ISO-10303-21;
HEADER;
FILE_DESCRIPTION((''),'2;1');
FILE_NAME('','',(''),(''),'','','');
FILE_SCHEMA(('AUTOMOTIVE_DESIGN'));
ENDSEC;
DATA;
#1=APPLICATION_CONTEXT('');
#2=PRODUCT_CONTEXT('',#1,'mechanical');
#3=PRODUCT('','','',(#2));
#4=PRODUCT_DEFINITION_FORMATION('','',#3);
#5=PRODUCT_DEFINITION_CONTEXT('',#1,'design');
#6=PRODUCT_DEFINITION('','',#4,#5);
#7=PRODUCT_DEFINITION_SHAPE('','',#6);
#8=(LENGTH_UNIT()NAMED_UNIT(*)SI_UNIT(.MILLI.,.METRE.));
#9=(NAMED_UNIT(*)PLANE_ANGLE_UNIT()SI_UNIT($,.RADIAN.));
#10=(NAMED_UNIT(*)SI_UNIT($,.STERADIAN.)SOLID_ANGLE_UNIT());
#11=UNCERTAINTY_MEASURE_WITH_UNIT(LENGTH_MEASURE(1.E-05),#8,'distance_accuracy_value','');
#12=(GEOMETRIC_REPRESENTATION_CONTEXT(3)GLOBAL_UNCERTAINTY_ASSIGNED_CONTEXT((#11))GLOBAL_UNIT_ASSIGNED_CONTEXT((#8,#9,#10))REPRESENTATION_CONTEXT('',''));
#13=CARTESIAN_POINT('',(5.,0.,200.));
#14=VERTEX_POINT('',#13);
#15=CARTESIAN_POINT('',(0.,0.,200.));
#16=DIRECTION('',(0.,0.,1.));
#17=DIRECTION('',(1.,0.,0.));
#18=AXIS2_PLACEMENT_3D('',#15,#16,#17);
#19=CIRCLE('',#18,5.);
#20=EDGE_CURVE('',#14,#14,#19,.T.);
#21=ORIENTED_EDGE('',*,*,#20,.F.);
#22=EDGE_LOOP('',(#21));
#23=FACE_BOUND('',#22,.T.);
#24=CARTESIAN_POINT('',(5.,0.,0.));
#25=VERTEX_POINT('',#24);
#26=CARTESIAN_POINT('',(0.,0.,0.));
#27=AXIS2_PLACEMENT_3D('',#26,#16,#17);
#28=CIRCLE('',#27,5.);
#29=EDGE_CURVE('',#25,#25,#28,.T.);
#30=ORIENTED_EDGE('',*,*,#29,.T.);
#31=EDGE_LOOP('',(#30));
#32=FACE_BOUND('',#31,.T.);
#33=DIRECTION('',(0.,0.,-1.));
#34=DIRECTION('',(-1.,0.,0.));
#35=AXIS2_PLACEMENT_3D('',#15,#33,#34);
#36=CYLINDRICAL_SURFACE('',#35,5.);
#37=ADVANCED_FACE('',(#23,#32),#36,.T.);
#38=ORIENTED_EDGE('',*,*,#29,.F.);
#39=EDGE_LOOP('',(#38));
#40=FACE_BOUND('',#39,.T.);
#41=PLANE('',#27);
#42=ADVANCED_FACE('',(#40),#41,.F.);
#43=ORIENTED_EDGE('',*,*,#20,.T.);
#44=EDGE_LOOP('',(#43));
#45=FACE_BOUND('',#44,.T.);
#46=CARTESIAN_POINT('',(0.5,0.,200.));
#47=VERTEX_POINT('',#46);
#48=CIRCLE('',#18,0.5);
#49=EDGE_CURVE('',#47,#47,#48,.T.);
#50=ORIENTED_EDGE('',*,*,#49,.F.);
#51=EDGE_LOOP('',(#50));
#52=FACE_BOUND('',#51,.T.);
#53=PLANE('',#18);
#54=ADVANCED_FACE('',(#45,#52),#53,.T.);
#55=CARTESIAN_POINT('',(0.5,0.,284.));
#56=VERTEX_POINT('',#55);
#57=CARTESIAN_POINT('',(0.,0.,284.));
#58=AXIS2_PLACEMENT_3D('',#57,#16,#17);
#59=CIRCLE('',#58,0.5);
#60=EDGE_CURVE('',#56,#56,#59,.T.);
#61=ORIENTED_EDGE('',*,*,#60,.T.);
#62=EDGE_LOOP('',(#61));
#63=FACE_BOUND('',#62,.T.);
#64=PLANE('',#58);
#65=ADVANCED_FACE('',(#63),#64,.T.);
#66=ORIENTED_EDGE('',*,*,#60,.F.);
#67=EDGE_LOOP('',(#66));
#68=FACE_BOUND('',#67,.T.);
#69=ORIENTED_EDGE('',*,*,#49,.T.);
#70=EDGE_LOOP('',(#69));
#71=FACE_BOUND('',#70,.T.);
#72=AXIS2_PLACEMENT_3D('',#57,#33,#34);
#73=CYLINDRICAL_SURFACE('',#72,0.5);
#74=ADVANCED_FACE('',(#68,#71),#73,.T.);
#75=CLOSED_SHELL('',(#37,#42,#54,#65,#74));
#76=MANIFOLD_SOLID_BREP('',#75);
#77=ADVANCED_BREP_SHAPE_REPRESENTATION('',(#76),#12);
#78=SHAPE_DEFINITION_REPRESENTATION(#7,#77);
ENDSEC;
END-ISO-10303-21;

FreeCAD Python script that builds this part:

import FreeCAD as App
import Part
import Sketcher

doc = App.newDocument("Part")
body = doc.addObject("PartDesign::Body", "Body")

# Sketch on XY plane
sketch1 = body.newObject("Sketcher::SketchObject", "Sketch")
sketch1.AttachmentSupport = (doc.getObject("XY_Plane"), [""])
sketch1.MapMode = "FlatFace"
sketch1.addGeometry(Part.Circle(App.Vector(0, 0, 0), App.Vector(0, 0, 1), 5), False)
sketch1.addConstraint([
    Sketcher.Constraint("Coincident", 0, 3, -1, 1),
    Sketcher.Constraint("Diameter", 0, 10.0),
])
pad1 = body.newObject("PartDesign::Pad", "Pad")
pad1.Profile = sketch1
pad1.Length = 200

# Sketch on XY plane
sketch2 = body.newObject("Sketcher::SketchObject", "Sketch001")
sketch2.AttachmentSupport = (doc.getObject("XY_Plane"), [""])
sketch2.MapMode = "FlatFace"
sketch2.AttachmentOffset = App.Placement(App.Vector(0, 0, 200), App.Rotation())
sketch2.addGeometry(Part.Circle(App.Vector(0, 0, 0), App.Vector(0, 0, 1), 0.5), False)
sketch2.addConstraint([
    Sketcher.Constraint("Coincident", 0, 3, -1, 1),
    Sketcher.Constraint("Diameter", 0, 1.0),
])
pad2 = body.newObject("PartDesign::Pad", "Pad001")
pad2.Profile = sketch2
pad2.Length = 84

doc.recompute()
